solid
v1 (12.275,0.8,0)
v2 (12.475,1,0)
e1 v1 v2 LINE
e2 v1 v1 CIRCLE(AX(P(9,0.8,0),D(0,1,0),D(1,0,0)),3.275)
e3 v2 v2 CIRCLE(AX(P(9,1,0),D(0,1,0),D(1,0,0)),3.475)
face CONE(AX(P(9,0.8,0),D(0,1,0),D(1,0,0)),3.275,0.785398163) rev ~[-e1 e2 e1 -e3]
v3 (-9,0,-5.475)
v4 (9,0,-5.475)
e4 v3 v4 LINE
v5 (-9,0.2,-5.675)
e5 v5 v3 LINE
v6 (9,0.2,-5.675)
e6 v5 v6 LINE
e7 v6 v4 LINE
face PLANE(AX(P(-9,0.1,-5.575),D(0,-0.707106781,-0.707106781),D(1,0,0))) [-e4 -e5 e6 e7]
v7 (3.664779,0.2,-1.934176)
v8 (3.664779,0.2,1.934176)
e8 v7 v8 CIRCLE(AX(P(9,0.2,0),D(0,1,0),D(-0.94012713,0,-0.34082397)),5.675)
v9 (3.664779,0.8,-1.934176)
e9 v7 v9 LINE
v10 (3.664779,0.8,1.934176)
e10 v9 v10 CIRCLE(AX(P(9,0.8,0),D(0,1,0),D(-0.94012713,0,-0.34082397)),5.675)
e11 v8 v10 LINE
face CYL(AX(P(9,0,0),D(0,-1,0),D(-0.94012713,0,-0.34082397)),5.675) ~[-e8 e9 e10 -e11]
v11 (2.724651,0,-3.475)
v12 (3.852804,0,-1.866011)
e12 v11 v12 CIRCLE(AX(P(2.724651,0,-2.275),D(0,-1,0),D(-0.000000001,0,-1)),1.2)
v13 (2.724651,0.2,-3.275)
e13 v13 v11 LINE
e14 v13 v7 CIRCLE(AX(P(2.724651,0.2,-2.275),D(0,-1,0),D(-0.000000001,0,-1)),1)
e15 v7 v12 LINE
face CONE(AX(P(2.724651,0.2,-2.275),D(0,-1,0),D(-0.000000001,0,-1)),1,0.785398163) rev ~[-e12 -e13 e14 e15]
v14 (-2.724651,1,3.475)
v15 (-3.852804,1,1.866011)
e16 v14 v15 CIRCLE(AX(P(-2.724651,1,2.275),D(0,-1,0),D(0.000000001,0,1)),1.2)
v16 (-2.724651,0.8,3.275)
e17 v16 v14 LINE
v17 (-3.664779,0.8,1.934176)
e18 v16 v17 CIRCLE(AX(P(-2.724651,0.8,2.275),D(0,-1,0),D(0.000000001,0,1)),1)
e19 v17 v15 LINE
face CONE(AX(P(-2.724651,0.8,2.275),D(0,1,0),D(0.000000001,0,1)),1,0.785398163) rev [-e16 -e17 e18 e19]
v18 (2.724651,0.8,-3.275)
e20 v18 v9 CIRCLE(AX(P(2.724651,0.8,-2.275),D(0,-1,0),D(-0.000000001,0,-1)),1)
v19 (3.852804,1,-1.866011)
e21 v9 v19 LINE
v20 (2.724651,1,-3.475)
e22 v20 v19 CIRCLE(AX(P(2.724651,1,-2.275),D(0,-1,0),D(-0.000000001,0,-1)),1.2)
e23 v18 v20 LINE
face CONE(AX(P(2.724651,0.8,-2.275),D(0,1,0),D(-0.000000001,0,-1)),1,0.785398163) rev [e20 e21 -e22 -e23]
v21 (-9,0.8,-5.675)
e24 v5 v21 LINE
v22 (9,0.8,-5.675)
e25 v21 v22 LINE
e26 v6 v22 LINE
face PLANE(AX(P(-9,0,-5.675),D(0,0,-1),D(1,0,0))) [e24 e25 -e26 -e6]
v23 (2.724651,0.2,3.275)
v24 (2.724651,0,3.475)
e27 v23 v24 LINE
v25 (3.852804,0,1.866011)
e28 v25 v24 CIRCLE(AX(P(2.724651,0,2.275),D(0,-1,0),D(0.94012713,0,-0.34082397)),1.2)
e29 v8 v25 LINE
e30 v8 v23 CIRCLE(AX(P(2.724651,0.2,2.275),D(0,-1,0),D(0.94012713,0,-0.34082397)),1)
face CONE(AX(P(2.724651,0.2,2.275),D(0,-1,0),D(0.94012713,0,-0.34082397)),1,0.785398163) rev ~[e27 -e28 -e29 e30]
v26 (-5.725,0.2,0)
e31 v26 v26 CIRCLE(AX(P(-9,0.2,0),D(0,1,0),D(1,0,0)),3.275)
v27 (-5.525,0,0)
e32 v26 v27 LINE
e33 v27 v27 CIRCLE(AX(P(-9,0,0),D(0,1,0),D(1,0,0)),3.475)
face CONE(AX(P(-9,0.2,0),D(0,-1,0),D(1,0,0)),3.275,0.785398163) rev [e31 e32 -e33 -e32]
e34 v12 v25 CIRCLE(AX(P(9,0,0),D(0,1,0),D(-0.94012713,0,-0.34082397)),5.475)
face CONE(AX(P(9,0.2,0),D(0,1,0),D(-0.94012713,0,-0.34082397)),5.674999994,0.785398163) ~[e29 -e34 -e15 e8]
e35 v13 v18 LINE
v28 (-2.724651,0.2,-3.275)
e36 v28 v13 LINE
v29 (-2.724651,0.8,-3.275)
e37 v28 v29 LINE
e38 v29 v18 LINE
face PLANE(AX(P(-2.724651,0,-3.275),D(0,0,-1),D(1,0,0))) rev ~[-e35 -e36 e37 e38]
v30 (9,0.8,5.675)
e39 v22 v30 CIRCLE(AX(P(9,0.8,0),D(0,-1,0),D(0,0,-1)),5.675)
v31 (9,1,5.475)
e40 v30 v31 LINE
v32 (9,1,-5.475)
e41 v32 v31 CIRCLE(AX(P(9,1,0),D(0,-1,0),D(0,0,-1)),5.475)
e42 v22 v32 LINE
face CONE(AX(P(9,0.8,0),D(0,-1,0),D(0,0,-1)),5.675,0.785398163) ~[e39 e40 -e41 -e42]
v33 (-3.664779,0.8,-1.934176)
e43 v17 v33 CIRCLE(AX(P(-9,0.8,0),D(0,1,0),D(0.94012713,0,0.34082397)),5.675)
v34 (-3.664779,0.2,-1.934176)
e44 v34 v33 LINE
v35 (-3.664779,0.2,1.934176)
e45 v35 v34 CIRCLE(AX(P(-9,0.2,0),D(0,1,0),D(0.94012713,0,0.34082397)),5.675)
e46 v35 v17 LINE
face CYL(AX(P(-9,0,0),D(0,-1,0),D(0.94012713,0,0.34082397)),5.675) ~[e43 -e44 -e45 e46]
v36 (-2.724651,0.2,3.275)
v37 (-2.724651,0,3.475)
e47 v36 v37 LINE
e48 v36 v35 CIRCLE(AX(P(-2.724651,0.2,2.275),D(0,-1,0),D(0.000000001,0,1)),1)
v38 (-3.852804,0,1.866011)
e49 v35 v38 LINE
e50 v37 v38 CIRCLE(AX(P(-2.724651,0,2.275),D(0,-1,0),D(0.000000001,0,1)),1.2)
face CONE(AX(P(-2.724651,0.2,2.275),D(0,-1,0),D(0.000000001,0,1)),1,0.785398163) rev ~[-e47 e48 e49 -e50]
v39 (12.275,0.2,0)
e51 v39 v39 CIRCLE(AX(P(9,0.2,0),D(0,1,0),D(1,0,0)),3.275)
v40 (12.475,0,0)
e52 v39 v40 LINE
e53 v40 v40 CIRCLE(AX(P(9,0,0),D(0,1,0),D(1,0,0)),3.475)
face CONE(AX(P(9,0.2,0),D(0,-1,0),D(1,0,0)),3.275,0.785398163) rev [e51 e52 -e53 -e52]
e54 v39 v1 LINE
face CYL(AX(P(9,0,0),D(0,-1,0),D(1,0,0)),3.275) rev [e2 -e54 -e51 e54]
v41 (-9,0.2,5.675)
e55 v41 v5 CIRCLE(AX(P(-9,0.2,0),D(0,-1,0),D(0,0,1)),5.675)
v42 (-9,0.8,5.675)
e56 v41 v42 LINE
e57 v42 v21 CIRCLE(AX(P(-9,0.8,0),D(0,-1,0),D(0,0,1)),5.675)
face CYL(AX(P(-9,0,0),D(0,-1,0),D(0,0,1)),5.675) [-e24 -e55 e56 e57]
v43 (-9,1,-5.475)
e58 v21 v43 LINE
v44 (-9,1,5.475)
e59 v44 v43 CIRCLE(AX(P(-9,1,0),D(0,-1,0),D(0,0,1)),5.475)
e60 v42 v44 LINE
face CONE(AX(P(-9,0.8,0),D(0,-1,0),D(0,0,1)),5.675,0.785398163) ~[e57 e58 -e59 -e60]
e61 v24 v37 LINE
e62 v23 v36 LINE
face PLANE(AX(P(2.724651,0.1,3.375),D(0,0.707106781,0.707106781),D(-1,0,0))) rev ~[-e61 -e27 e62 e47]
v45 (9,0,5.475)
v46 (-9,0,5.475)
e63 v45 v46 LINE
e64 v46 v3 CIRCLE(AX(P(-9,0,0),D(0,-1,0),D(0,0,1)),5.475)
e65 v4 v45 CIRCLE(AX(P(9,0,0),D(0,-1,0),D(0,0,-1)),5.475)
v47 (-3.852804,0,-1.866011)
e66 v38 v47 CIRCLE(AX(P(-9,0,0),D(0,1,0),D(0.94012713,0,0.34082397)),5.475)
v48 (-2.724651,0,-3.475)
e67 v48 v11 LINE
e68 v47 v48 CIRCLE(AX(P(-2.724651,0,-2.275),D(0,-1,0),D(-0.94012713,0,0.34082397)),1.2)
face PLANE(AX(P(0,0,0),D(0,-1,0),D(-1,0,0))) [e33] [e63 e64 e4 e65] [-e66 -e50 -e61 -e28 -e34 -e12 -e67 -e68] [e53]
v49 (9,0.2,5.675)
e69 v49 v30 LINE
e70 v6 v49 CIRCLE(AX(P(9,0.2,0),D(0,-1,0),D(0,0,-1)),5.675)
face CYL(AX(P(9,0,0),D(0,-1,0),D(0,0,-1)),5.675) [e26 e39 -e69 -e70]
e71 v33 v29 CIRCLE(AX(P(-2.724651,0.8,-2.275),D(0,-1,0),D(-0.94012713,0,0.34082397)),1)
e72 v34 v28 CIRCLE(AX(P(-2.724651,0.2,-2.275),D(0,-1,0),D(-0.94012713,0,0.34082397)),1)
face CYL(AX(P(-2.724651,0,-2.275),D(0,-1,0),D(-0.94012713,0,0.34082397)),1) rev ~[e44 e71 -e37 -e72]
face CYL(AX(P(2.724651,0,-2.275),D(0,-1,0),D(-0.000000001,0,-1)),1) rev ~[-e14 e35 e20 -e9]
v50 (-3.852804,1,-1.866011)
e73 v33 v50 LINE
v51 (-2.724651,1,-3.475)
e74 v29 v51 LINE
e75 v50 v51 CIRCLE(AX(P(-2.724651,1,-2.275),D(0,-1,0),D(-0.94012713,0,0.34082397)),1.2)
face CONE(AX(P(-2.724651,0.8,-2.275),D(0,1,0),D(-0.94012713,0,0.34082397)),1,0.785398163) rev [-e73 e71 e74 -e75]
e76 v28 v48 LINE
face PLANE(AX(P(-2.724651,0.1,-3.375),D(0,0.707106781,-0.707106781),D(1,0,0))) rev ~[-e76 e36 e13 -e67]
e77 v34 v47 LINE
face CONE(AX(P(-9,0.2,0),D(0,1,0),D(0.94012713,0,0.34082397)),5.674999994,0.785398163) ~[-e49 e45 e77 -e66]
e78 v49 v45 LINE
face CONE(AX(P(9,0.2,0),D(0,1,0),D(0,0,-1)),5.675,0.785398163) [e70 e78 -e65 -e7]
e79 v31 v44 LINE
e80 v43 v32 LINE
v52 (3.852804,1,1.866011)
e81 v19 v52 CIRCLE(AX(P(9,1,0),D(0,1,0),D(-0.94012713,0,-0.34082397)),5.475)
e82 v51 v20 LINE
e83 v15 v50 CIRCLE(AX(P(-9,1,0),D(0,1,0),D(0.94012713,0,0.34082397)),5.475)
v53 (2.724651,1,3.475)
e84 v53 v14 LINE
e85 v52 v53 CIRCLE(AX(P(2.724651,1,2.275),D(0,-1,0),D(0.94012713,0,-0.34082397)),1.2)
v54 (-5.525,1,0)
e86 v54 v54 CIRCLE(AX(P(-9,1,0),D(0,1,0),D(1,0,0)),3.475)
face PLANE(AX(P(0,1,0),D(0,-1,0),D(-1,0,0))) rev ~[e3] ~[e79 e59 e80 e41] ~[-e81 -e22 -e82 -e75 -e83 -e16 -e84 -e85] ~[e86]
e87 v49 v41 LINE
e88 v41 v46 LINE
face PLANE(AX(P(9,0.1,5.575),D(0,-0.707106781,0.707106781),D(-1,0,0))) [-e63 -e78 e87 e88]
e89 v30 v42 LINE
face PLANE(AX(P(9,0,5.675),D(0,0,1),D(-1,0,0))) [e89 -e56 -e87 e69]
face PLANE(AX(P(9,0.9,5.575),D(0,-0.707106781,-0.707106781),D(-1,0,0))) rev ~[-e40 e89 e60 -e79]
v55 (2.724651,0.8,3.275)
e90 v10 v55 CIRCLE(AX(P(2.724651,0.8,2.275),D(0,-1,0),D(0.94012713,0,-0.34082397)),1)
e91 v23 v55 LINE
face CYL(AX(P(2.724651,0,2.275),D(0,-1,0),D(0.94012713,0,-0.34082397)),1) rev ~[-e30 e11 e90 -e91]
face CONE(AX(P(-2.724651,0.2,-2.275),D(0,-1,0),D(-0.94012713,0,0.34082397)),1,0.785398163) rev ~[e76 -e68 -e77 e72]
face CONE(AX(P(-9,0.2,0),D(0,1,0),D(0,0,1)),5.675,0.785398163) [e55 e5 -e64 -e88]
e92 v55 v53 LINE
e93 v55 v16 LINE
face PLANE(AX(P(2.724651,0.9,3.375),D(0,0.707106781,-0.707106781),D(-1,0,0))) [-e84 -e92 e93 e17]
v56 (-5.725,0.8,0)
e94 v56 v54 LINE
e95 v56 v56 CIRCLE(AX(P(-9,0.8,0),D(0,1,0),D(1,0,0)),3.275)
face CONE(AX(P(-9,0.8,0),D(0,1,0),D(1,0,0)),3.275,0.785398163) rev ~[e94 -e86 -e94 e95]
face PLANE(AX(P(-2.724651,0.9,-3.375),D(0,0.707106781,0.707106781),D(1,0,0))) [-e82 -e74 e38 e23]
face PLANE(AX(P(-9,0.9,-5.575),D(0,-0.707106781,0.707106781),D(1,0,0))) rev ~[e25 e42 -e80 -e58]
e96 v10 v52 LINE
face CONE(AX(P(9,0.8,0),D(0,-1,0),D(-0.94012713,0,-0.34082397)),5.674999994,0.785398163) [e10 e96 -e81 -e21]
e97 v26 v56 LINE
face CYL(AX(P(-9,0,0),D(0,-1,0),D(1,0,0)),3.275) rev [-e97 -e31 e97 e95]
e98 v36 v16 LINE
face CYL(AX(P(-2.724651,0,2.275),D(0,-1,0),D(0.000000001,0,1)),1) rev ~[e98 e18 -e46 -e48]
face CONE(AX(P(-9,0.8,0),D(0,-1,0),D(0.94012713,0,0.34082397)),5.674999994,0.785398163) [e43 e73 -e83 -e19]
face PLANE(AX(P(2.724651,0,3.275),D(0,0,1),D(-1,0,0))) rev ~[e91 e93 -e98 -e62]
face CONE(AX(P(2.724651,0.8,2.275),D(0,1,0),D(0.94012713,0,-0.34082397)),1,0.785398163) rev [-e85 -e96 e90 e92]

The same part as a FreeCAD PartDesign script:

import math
import FreeCAD as App
import Part
import Sketcher

V = App.Vector
Q = App.Units.Quantity


def edges_at(feature, points):
    """Names of the edges that pass closest to the given points."""
    edges = feature.Shape.Edges
    near = lambda p: min(range(len(edges)), key=lambda i: edges[i].distToShape(Part.Vertex(*p))[0])
    return sorted({f"Edge{near(p) + 1}" for p in points})

doc = App.newDocument("Part")
body = doc.addObject("PartDesign::Body", "Body")

sketch1 = doc.addObject("Sketcher::SketchObject", "Sketch")
body.addObject(sketch1)
sketch1.AttachmentSupport = (doc.XZ_Plane, [""])
sketch1.MapMode = "FlatFace"
sketch1.addGeometry(Part.LineSegment(V(9, -5.675, 0), V(-9, -5.675, 0)), False)
sketch1.addGeometry(Part.ArcOfCircle(Part.Circle(V(-9, 0, 0), V(0, 0, 1), 5.675), math.radians(90), math.radians(270)), False)
sketch1.addGeometry(Part.LineSegment(V(-9, 5.675, 0), V(9, 5.675, 0)), False)
sketch1.addGeometry(Part.ArcOfCircle(Part.Circle(V(9, 0, 0), V(0, 0, 1), 5.675), math.radians(-90), math.radians(90)), False)
sketch1.addGeometry(Part.Circle(V(9, 0, 0), V(0, 0, 1), 3.275), False)
sketch1.addGeometry(Part.LineSegment(V(-2.724651, -3.275, 0), V(2.724651, -3.275, 0)), False)
sketch1.addGeometry(Part.ArcOfCircle(Part.Circle(V(2.724651, -2.275, 0), V(0, 0, 1), 1), math.radians(-90), math.radians(19.927083)), False)
sketch1.addGeometry(Part.ArcOfCircle(Part.Circle(V(9, 0, 0), V(0, 0, 1), 5.675), math.radians(160.072917), math.radians(199.927083)), False)
sketch1.addGeometry(Part.ArcOfCircle(Part.Circle(V(2.724651, 2.275, 0), V(0, 0, 1), 1), math.radians(-19.927083), math.radians(90)), False)
sketch1.addGeometry(Part.LineSegment(V(2.724651, 3.275, 0), V(-2.724651, 3.275, 0)), False)
sketch1.addGeometry(Part.ArcOfCircle(Part.Circle(V(-2.724651, 2.275, 0), V(0, 0, 1), 1), math.radians(90), math.radians(199.927083)), False)
sketch1.addGeometry(Part.ArcOfCircle(Part.Circle(V(-9, 0, 0), V(0, 0, 1), 5.675), math.radians(-19.927083), math.radians(19.927083)), False)
sketch1.addGeometry(Part.ArcOfCircle(Part.Circle(V(-2.724651, -2.275, 0), V(0, 0, 1), 1), math.radians(160.072917), math.radians(270)), False)
sketch1.addGeometry(Part.Circle(V(-9, 0, 0), V(0, 0, 1), 3.275), False)
sketch1.addConstraint(Sketcher.Constraint("Tangent", 0, 2, 1, 2))
sketch1.addConstraint(Sketcher.Constraint("Tangent", 1, 1, 2, 1))
sketch1.addConstraint(Sketcher.Constraint("Tangent", 2, 2, 3, 2))
sketch1.addConstraint(Sketcher.Constraint("Tangent", 3, 1, 0, 1))
sketch1.addConstraint(Sketcher.Constraint("Tangent", 5, 2, 6, 1))
sketch1.addConstraint(Sketcher.Constraint("Tangent", 6, 2, 7, 2))
sketch1.addConstraint(Sketcher.Constraint("Tangent", 7, 1, 8, 1))
sketch1.addConstraint(Sketcher.Constraint("Tangent", 8, 2, 9, 1))
sketch1.addConstraint(Sketcher.Constraint("Tangent", 9, 2, 10, 1))
sketch1.addConstraint(Sketcher.Constraint("Tangent", 10, 2, 11, 2))
sketch1.addConstraint(Sketcher.Constraint("Tangent", 11, 1, 12, 1))
sketch1.addConstraint(Sketcher.Constraint("Tangent", 12, 2, 5, 1))
sketch1.addConstraint(Sketcher.Constraint("Horizontal", 0))
sketch1.addConstraint(Sketcher.Constraint("Horizontal", 2))
sketch1.addConstraint(Sketcher.Constraint("Horizontal", 5))
sketch1.addConstraint(Sketcher.Constraint("Horizontal", 9))
sketch1.addConstraint(Sketcher.Constraint("Coincident", 4, 3, 3, 3))
sketch1.addConstraint(Sketcher.Constraint("Coincident", 7, 3, 3, 3))
sketch1.addConstraint(Sketcher.Constraint("Coincident", 11, 3, 1, 3))
sketch1.addConstraint(Sketcher.Constraint("Coincident", 13, 3, 1, 3))
sketch1.addConstraint(Sketcher.Constraint("Equal", 3, 7))
sketch1.addConstraint(Sketcher.Constraint("Equal", 6, 8))
sketch1.addConstraint(Sketcher.Constraint("Equal", 8, 10))
sketch1.addConstraint(Sketcher.Constraint("Equal", 7, 11))
sketch1.addConstraint(Sketcher.Constraint("Equal", 10, 12))
sketch1.addConstraint(Sketcher.Constraint("Equal", 4, 13))
sketch1.addConstraint(Sketcher.Constraint("Symmetric", 1, 3, 3, 3, -1, 1))
sketch1.addConstraint(Sketcher.Constraint("Vertical", 6, 3, 8, 3))
sketch1.addConstraint(Sketcher.Constraint("Radius", 6, Q("1 mm")))
sketch1.addConstraint(Sketcher.Constraint("Diameter", 4, Q("6.55 mm")))
sketch1.addConstraint(Sketcher.Constraint("DistanceX", 0, 2, 0, 1, Q("18 mm")))
sketch1.addConstraint(Sketcher.Constraint("Radius", 1, Q("5.675 mm")))
sketch1.addConstraint(Sketcher.Constraint("DistanceY", 0, 2, 12, 3, Q("3.4 mm")))
pad1 = doc.addObject("PartDesign::Pad", "Pad")
body.addObject(pad1)
pad1.Profile = sketch1
pad1.Length = 1
pad1.Reversed = True
doc.recompute()

chamfer = doc.addObject("PartDesign::Chamfer", "Chamfer")
body.addObject(chamfer)
chamfer.Base = (pad1, edges_at(pad1, [
    (-12.275, 0, 0),
    (-12.275, 1, 0),
    (14.675, 1, 0),
    (0, 1, -5.675),
    (3.543, 0, -2.849),
    (0, 0, -3.275),
    (-3.543, 0, -2.849),
    (-3.325, 0, 0),
    (-3.543, 0, 2.849),
    (0, 0, 3.275),
    (3.543, 0, 2.849),
    (3.325, 0, 0),
    (3.543, 1, -2.849),
    (0, 1, -3.275),
    (-3.543, 1, -2.849),
    (-3.325, 1, 0),
    (-3.543, 1, 2.849),
    (0, 1, 3.275),
    (3.543, 1, 2.849),
    (3.325, 1, 0),
    (5.725, 0, 0),
    (5.725, 1, 0),
    (-14.675, 1, 0),
    (0, 0, -5.675),
    (14.675, 0, 0),
    (0, 0, 5.675),
    (-14.675, 0, 0),
    (0, 1, 5.675),
]))
chamfer.Size = 0.2

doc.recompute()
